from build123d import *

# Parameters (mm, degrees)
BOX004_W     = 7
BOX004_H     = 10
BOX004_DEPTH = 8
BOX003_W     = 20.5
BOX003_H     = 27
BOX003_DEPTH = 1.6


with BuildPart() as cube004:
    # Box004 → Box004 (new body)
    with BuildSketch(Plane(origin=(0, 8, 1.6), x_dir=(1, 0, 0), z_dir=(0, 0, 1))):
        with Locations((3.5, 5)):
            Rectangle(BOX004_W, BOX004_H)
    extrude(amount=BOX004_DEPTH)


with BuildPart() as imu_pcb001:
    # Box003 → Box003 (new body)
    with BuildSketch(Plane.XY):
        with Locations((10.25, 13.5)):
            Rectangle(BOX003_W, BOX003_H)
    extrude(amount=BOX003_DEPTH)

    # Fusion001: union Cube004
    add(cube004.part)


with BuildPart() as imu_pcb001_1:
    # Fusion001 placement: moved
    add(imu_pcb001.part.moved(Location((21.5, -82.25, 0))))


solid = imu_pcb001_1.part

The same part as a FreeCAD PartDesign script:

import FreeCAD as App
import Part
import Sketcher
from FreeCAD import Vector
Q = App.Units.Quantity

doc = App.newDocument("Part")
body = doc.addObject("PartDesign::Body", "Body")

sketch1 = doc.addObject("Sketcher::SketchObject", "Sketch")
body.addObject(sketch1)
sketch1.AttachmentSupport = (doc.XY_Plane, [""])
sketch1.MapMode = "FlatFace"
sketch1.AttachmentOffset = App.Placement(Vector(0, 0, 1.6), App.Rotation())
sketch1.addGeometry(Part.LineSegment(Vector(0, 18, 0), Vector(0, 8, 0)), False)
sketch1.addGeometry(Part.LineSegment(Vector(0, 8, 0), Vector(7, 8, 0)), False)
sketch1.addGeometry(Part.LineSegment(Vector(7, 8, 0), Vector(7, 18, 0)), False)
sketch1.addGeometry(Part.LineSegment(Vector(7, 18, 0), Vector(0, 18, 0)), False)
sketch1.addConstraint(Sketcher.Constraint("Coincident", 0, 2, 1, 1))
sketch1.addConstraint(Sketcher.Constraint("Coincident", 1, 2, 2, 1))
sketch1.addConstraint(Sketcher.Constraint("Coincident", 2, 2, 3, 1))
sketch1.addConstraint(Sketcher.Constraint("Coincident", 3, 2, 0, 1))
sketch1.addConstraint(Sketcher.Constraint("Vertical", 0))
sketch1.addConstraint(Sketcher.Constraint("Horizontal", 1))
sketch1.addConstraint(Sketcher.Constraint("Vertical", 2))
sketch1.addConstraint(Sketcher.Constraint("Horizontal", 3))
sketch1.addConstraint(Sketcher.Constraint("PointOnObject", 0, 2, -2))
sketch1.addConstraint(Sketcher.Constraint("DistanceX", 1, 1, 1, 2, Q("7 mm")))
sketch1.addConstraint(Sketcher.Constraint("DistanceY", 0, 2, 0, 1, Q("10 mm")))
sketch1.addConstraint(Sketcher.Constraint("DistanceY", -1, 1, 0, 2, Q("8 mm")))
pad1 = doc.addObject("PartDesign::Pad", "Pad")
body.addObject(pad1)
pad1.Profile = sketch1
pad1.Length = 8
body2 = doc.addObject("PartDesign::Body", "Body001")

sketch2 = doc.addObject("Sketcher::SketchObject", "Sketch001")
body2.addObject(sketch2)
sketch2.AttachmentSupport = (doc.getObject("XY_Plane001"), [""])
sketch2.MapMode = "FlatFace"
sketch2.addGeometry(Part.LineSegment(Vector(0, 27, 0), Vector(0, 0, 0)), False)
sketch2.addGeometry(Part.LineSegment(Vector(0, 0, 0), Vector(20, 0, 0)), False)
sketch2.addGeometry(Part.LineSegment(Vector(20, 0, 0), Vector(20, 27, 0)), False)
sketch2.addGeometry(Part.LineSegment(Vector(20, 27, 0), Vector(0, 27, 0)), False)
sketch2.addConstraint(Sketcher.Constraint("Coincident", 0, 2, 1, 1))
sketch2.addConstraint(Sketcher.Constraint("Coincident", 1, 2, 2, 1))
sketch2.addConstraint(Sketcher.Constraint("Coincident", 2, 2, 3, 1))
sketch2.addConstraint(Sketcher.Constraint("Coincident", 3, 2, 0, 1))
sketch2.addConstraint(Sketcher.Constraint("Vertical", 0))
sketch2.addConstraint(Sketcher.Constraint("Horizontal", 1))
sketch2.addConstraint(Sketcher.Constraint("Vertical", 2))
sketch2.addConstraint(Sketcher.Constraint("Horizontal", 3))
sketch2.addConstraint(Sketcher.Constraint("Coincident", 0, 2, -1, 1))
sketch2.addConstraint(Sketcher.Constraint("DistanceY", 0, 2, 0, 1, Q("27 mm")))
sketch2.addConstraint(Sketcher.Constraint("DistanceX", 1, 1, 1, 2, Q("20.5 mm")))
pad2 = doc.addObject("PartDesign::Pad", "Pad001")
body2.addObject(pad2)
pad2.Profile = sketch2
pad2.Length = 1.6
doc.recompute()

boolean = doc.addObject("PartDesign::Boolean", "Boolean")
body2.addObject(boolean)
boolean.Type = "Fuse"
boolean.addObjects([body])
body3 = doc.addObject("PartDesign::Body", "Body002")
doc.recompute()

body2.Placement = App.Placement(Vector(21.5, -82.25, 0), App.Rotation(Vector(0, 0, 1), 0))
boolean2 = doc.addObject("PartDesign::Boolean", "Boolean001")
body3.addObject(boolean2)
boolean2.Type = "Fuse"
boolean2.addObjects([body2])

doc.recompute()
